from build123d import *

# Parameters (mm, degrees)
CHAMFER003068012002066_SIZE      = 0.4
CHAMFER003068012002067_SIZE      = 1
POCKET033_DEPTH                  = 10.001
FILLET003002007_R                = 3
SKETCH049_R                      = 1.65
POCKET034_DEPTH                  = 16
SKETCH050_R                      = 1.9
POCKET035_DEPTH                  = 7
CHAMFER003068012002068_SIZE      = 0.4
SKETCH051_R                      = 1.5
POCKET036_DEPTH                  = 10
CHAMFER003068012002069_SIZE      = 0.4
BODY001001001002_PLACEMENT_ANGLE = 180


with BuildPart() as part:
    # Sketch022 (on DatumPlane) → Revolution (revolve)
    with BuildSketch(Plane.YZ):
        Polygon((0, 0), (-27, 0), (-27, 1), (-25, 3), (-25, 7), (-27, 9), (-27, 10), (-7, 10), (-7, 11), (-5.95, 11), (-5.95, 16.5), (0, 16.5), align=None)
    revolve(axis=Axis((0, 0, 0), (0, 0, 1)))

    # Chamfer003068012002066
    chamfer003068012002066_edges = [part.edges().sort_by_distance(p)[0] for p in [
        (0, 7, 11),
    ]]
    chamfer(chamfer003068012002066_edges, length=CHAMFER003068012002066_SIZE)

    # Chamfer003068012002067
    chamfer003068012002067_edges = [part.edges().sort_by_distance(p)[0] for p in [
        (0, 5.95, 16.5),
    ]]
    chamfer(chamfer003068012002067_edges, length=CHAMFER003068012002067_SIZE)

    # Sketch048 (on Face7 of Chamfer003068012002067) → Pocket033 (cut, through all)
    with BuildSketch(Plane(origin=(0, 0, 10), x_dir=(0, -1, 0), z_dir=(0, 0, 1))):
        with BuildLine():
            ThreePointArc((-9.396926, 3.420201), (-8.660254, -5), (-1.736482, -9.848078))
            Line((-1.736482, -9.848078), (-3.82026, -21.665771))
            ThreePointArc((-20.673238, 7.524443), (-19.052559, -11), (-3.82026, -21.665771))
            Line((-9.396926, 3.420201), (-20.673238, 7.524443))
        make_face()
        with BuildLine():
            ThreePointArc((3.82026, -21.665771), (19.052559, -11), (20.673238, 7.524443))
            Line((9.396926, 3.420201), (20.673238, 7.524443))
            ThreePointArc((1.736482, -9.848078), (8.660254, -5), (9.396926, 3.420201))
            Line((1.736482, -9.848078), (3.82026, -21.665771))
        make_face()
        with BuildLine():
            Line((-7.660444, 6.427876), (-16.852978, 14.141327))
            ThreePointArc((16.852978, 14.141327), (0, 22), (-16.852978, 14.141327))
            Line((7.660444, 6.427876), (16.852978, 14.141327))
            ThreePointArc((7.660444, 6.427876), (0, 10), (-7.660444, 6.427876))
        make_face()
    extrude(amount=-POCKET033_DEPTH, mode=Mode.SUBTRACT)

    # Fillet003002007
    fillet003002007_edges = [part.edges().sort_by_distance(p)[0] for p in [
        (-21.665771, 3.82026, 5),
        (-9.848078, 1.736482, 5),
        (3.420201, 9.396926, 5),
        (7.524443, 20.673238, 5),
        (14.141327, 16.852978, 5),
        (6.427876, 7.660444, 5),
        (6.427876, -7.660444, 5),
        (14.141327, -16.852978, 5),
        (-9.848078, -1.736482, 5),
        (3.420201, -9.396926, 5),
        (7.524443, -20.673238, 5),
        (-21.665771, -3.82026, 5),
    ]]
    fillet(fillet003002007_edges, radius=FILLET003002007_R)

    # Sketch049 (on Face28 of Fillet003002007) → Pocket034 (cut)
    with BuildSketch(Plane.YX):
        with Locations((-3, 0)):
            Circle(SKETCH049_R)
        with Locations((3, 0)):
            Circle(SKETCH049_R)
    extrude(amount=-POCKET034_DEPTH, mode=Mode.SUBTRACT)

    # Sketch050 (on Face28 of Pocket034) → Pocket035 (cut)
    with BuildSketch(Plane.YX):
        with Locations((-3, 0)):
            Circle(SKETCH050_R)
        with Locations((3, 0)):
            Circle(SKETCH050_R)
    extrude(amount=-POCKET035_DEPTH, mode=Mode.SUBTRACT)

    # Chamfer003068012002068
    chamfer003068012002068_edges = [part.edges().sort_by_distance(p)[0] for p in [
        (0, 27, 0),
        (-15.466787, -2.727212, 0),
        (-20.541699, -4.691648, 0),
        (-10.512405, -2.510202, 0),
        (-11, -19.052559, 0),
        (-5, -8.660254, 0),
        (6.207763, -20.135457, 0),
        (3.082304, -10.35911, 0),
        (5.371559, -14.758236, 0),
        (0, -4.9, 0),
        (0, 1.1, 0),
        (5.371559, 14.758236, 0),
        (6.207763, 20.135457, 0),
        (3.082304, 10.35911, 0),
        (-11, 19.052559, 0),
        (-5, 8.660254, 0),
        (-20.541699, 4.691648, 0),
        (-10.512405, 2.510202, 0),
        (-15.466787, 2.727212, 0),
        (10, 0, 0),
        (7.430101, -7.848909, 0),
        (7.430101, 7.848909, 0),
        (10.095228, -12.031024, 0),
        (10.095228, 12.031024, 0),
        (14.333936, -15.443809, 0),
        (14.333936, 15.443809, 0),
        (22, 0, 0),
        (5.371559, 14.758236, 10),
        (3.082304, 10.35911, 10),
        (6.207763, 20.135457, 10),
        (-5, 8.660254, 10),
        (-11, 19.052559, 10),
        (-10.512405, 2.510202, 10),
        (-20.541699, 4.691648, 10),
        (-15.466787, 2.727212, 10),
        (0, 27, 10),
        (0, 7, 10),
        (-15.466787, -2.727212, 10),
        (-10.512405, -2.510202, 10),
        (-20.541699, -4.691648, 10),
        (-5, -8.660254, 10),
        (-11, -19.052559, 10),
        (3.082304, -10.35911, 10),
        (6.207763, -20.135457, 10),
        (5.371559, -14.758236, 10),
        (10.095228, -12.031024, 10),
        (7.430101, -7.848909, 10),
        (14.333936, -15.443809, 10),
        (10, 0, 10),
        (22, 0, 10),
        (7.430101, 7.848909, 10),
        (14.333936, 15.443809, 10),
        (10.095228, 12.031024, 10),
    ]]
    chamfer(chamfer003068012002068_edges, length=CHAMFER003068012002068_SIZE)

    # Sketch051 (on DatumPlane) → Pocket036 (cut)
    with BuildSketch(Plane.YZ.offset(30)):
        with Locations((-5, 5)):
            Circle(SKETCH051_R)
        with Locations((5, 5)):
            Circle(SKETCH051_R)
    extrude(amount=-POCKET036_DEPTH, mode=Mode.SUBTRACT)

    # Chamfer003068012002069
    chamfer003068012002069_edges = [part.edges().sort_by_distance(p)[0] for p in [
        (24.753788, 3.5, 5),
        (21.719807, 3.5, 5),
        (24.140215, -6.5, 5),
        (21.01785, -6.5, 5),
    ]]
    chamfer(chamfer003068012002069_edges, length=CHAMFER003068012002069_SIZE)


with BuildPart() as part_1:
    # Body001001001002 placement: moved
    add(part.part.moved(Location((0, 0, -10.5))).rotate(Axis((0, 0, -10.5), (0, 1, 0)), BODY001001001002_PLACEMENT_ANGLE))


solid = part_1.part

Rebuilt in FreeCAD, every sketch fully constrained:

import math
import FreeCAD as App
import Part
import Sketcher
from FreeCAD import Vector
Q = App.Units.Quantity


def edges_at(feature, points):
    """Names of the edges that pass closest to the given points."""
    edges = feature.Shape.Edges
    near = lambda p: min(range(len(edges)), key=lambda i: edges[i].distToShape(Part.Vertex(*p))[0])
    return sorted({f"Edge{near(p) + 1}" for p in points})


def add_polygon(sketch, points):
    """Adds a closed chain of lines whose ends are joined by coincident constraints."""
    first, n = sketch.GeometryCount, len(points)
    for a, b in zip(points, points[1:] + points[:1]):
        sketch.addGeometry(Part.LineSegment(App.Vector(*a, 0), App.Vector(*b, 0)), False)
    for i in range(n):
        sketch.addConstraint(Sketcher.Constraint("Coincident", first + i, 2, first + (i + 1) % n, 1))

doc = App.newDocument("Part")
body = doc.addObject("PartDesign::Body", "Body")

sketch1 = body.newObject("Sketcher::SketchObject", "Sketch")
sketch1.AttachmentSupport = (doc.getObject("YZ_Plane"), [""])
sketch1.MapMode = "FlatFace"
add_polygon(sketch1, [(-27, 0), (0, 0), (0, 16.5), (-5.95, 16.5), (-5.95, 11), (-7, 11), (-7, 10), (-27, 10), (-27, 9), (-25, 7), (-25, 3), (-27, 1)])
sketch1.addConstraint([
    Sketcher.Constraint("Horizontal", 0),
    Sketcher.Constraint("Vertical", 1),
    Sketcher.Constraint("Horizontal", 2),
    Sketcher.Constraint("Vertical", 3),
    Sketcher.Constraint("Horizontal", 4),
    Sketcher.Constraint("Vertical", 5),
    Sketcher.Constraint("Horizontal", 6),
    Sketcher.Constraint("Vertical", 7),
    Sketcher.Constraint("Vertical", 9),
    Sketcher.Constraint("Vertical", 11),
    Sketcher.Constraint("Coincident", 0, 2, -1, 1),
    Sketcher.Constraint("Perpendicular", 8, 10),
    Sketcher.Constraint("Vertical", 7, 2, 10, 2),
    Sketcher.Constraint("Equal", 5, 7),
    Sketcher.Constraint("Equal", 7, 11),
    Sketcher.Constraint("Equal", 8, 10),
    Sketcher.Constraint("DistanceX", 0, 1, 0, 2, 27.0),
    Sketcher.Constraint("DistanceX", 6, 2, 6, 1, 20.0),
    Sketcher.Constraint("DistanceY", 5, 2, 5, 1, 1.0),
    Sketcher.Constraint("DistanceY", 9, 2, 9, 1, 4.0),
    Sketcher.Constraint("DistanceY", 1, 1, 1, 2, 16.5),
    Sketcher.Constraint("DistanceY", 3, 2, 3, 1, 5.5),
    Sketcher.Constraint("DistanceX", 2, 2, 2, 1, 5.95),
])
revolution = body.newObject("PartDesign::Revolution", "Revolution")
revolution.Profile = sketch1
revolution.ReferenceAxis = (sketch1, ["V_Axis"])
revolution.Angle = 360
doc.recompute()

chamfer = body.newObject("PartDesign::Chamfer", "Chamfer")
chamfer.Base = (revolution, edges_at(revolution, [(0, 7, 11)]))
chamfer.Size = 0.4
doc.recompute()

chamfer2 = body.newObject("PartDesign::Chamfer", "Chamfer001")
chamfer2.Base = (chamfer, edges_at(chamfer, [(0, 5.95, 16.5)]))
chamfer2.Size = 1

sketch2 = body.newObject("Sketcher::SketchObject", "Sketch001")
sketch2.AttachmentSupport = (doc.getObject("XY_Plane"), [""])
sketch2.MapMode = "FlatFace"
sketch2.AttachmentOffset = App.Placement(Vector(0, 0, 10), App.Rotation())
sketch2.addGeometry([
    Part.ArcOfCircle(Part.Circle(Vector(0, -0.000001, 0), Vector(0, 0, 1), 10), math.radians(70.000001), math.radians(169.999996)),
    Part.LineSegment(Vector(3.420201, 9.396926, 0), Vector(7.524443, 20.673238, 0)),
    Part.ArcOfCircle(Part.Circle(Vector(0, -0.000001, 0), Vector(0, 0, 1), 22.000001), math.radians(70.000002), math.radians(169.999998)),
    Part.LineSegment(Vector(-21.665771, 3.82026, 0), Vector(-9.848078, 1.736482, 0)),
    Part.ArcOfCircle(Part.Circle(Vector(0, 0.000001, 0), Vector(0, 0, 1), 22.000001), math.radians(-169.999998), math.radians(-70.000002)),
    Part.LineSegment(Vector(7.524443, -20.673238, 0), Vector(3.420201, -9.396926, 0)),
    Part.ArcOfCircle(Part.Circle(Vector(0, 0.000001, 0), Vector(0, 0, 1), 10), math.radians(-169.999996), math.radians(-70.000001)),
    Part.LineSegment(Vector(-9.848078, -1.736482, 0), Vector(-21.665771, -3.82026, 0)),
    Part.LineSegment(Vector(14.141327, 16.852978, 0), Vector(6.427876, 7.660444, 0)),
    Part.ArcOfCircle(Part.Circle(Vector(0.000001, 0, 0), Vector(0, 0, 1), 9.999999), math.radians(-50.000004), math.radians(50.000004)),
    Part.LineSegment(Vector(6.427876, -7.660444, 0), Vector(14.141327, -16.852978, 0)),
    Part.ArcOfCircle(Part.Circle(Vector(0, 0, 0), Vector(0, 0, 1), 22), math.radians(-50.000002), math.radians(50.000002)),
], False)
sketch2.addConstraint([
    Sketcher.Constraint("Coincident", 0, 1, 1, 1),
    Sketcher.Constraint("Coincident", 1, 2, 2, 1),
    Sketcher.Constraint("Coincident", 2, 2, 3, 1),
    Sketcher.Constraint("Coincident", 3, 2, 0, 2),
    Sketcher.Constraint("Coincident", 4, 2, 5, 1),
    Sketcher.Constraint("Coincident", 5, 2, 6, 2),
    Sketcher.Constraint("Coincident", 6, 1, 7, 1),
    Sketcher.Constraint("Coincident", 7, 2, 4, 1),
    Sketcher.Constraint("Coincident", 8, 2, 9, 2),
    Sketcher.Constraint("Coincident", 9, 1, 10, 1),
    Sketcher.Constraint("Coincident", 10, 2, 11, 1),
    Sketcher.Constraint("Coincident", 11, 2, 8, 1),
    Sketcher.Constraint("Coincident", 0, 3, -1, 1),
    Sketcher.Constraint("Coincident", 2, 3, -1, 1),
    Sketcher.Constraint("Coincident", 4, 3, -1, 1),
    Sketcher.Constraint("Coincident", 6, 3, -1, 1),
    Sketcher.Constraint("Coincident", 9, 3, -1, 1),
    Sketcher.Constraint("Coincident", 11, 3, -1, 1),
    Sketcher.Constraint("Equal", 2, 4),
    Sketcher.Constraint("Equal", 0, 6),
    Sketcher.Constraint("Equal", 6, 9),
    Sketcher.Constraint("Equal", 4, 11),
    Sketcher.Constraint("Vertical", 1, 2, 4, 2),
    Sketcher.Constraint("Vertical", 0, 1, 5, 2),
    Sketcher.Constraint("Vertical", 3, 2, 6, 1),
    Sketcher.Constraint("Vertical", 2, 2, 7, 2),
    Sketcher.Constraint("Vertical", 8, 2, 9, 1),
    Sketcher.Constraint("Vertical", 10, 2, 11, 2),
    Sketcher.Constraint("Radius", 0, 10.0),
    Sketcher.Constraint("Radius", 2, 22.000001),
    Sketcher.Constraint("Angle", 1, Q("70 deg")),
    Sketcher.Constraint("Angle", 3, Q("-9.999999 deg")),
    Sketcher.Constraint("Angle", 8, Q("-129.999997 deg")),
    Sketcher.Constraint("DistanceX", -1, 1, 0, 1, 3.420201),
    Sketcher.Constraint("DistanceX", 2, 2, -1, 1, 21.665771),
    Sketcher.Constraint("DistanceY", 10, 2, -1, 1, 16.852978),
])
pocket1 = body.newObject("PartDesign::Pocket", "Pocket")
pocket1.Profile = sketch2
pocket1.Type = "ThroughAll"
doc.recompute()

fillet = body.newObject("PartDesign::Fillet", "Fillet")
fillet.Base = (pocket1, edges_at(pocket1, [
    (-21.666, 3.82, 5),
    (-9.848, 1.736, 5),
    (3.42, 9.397, 5),
    (7.524, 20.673, 5),
    (14.141, 16.853, 5),
    (6.428, 7.66, 5),
    (6.428, -7.66, 5),
    (14.141, -16.853, 5),
    (-9.848, -1.736, 5),
    (3.42, -9.397, 5),
    (7.524, -20.673, 5),
    (-21.666, -3.82, 5),
]))
fillet.Radius = 3

sketch3 = body.newObject("Sketcher::SketchObject", "Sketch002")
sketch3.AttachmentSupport = (doc.getObject("XY_Plane"), [""])
sketch3.MapMode = "FlatFace"
sketch3.addGeometry([
    Part.Circle(Vector(0, -3, 0), Vector(0, 0, 1), 1.65),
    Part.Circle(Vector(0, 3, 0), Vector(0, 0, 1), 1.65),
], False)
sketch3.addConstraint([
    Sketcher.Constraint("Equal", 0, 1),
    Sketcher.Constraint("Symmetric", 0, 3, 1, 3, -1, 1),
    Sketcher.Constraint("PointOnObject", 0, 3, -2),
    Sketcher.Constraint("Diameter", 0, 3.3),
    Sketcher.Constraint("DistanceY", 0, 3, -1, 1, 3.0),
])
pocket2 = body.newObject("PartDesign::Pocket", "Pocket001")
pocket2.Profile = sketch3
pocket2.Length = 16
pocket2.Reversed = True

sketch4 = body.newObject("Sketcher::SketchObject", "Sketch003")
sketch4.AttachmentSupport = (doc.getObject("XY_Plane"), [""])
sketch4.MapMode = "FlatFace"
sketch4.addGeometry([
    Part.Circle(Vector(0, -3, 0), Vector(0, 0, 1), 1.9),
    Part.Circle(Vector(0, 3, 0), Vector(0, 0, 1), 1.9),
], False)
sketch4.addConstraint([
    Sketcher.Constraint("Equal", 0, 1),
    Sketcher.Constraint("Symmetric", 0, 3, 1, 3, -1, 1),
    Sketcher.Constraint("PointOnObject", 0, 3, -2),
    Sketcher.Constraint("Diameter", 0, 3.8),
    Sketcher.Constraint("DistanceY", 0, 3, -1, 1, 3.0),
])
pocket3 = body.newObject("PartDesign::Pocket", "Pocket002")
pocket3.Profile = sketch4
pocket3.Length = 7
pocket3.Reversed = True
doc.recompute()

chamfer3 = body.newObject("PartDesign::Chamfer", "Chamfer002")
chamfer3.Base = (pocket3, edges_at(pocket3, [
    (0, 27, 0),
    (-15.467, -2.727, 0),
    (-20.542, -4.692, 0),
    (-10.512, -2.51, 0),
    (-11, -19.053, 0),
    (-5, -8.66, 0),
    (6.208, -20.135, 0),
    (3.082, -10.359, 0),
    (5.372, -14.758, 0),
    (0, -4.9, 0),
    (0, 1.1, 0),
    (5.372, 14.758, 0),
    (6.208, 20.135, 0),
    (3.082, 10.359, 0),
    (-11, 19.053, 0),
    (-5, 8.66, 0),
    (-20.542, 4.692, 0),
    (-10.512, 2.51, 0),
    (-15.467, 2.727, 0),
    (10, 0, 0),
    (7.43, -7.849, 0),
    (7.43, 7.849, 0),
    (10.095, -12.031, 0),
    (10.095, 12.031, 0),
    (14.334, -15.444, 0),
    (14.334, 15.444, 0),
    (22, 0, 0),
    (5.372, 14.758, 10),
    (3.082, 10.359, 10),
    (6.208, 20.135, 10),
    (-5, 8.66, 10),
    (-11, 19.053, 10),
    (-10.512, 2.51, 10),
    (-20.542, 4.692, 10),
    (-15.467, 2.727, 10),
    (0, 27, 10),
    (0, 7, 10),
    (-15.467, -2.727, 10),
    (-10.512, -2.51, 10),
    (-20.542, -4.692, 10),
    (-5, -8.66, 10),
    (-11, -19.053, 10),
    (3.082, -10.359, 10),
    (6.208, -20.135, 10),
    (5.372, -14.758, 10),
    (10.095, -12.031, 10),
    (7.43, -7.849, 10),
    (14.334, -15.444, 10),
    (10, 0, 10),
    (22, 0, 10),
    (7.43, 7.849, 10),
    (14.334, 15.444, 10),
    (10.095, 12.031, 10),
]))
chamfer3.Size = 0.4

sketch5 = body.newObject("Sketcher::SketchObject", "Sketch004")
sketch5.AttachmentSupport = (doc.getObject("YZ_Plane"), [""])
sketch5.MapMode = "FlatFace"
sketch5.AttachmentOffset = App.Placement(Vector(0, 0, 30), App.Rotation())
sketch5.addGeometry([
    Part.Circle(Vector(-5, 5, 0), Vector(0, 0, 1), 1.5),
    Part.Circle(Vector(5, 5, 0), Vector(0, 0, 1), 1.5),
], False)
sketch5.addConstraint([
    Sketcher.Constraint("Equal", 0, 1),
    Sketcher.Constraint("Symmetric", 0, 3, 1, 3, -2),
    Sketcher.Constraint("Diameter", 0, 3.0),
    Sketcher.Constraint("DistanceX", 0, 3, -1, 1, 5.0),
    Sketcher.Constraint("DistanceY", -1, 1, 0, 3, 5.0),
])
pocket4 = body.newObject("PartDesign::Pocket", "Pocket003")
pocket4.Profile = sketch5
pocket4.Length = 10
doc.recompute()

chamfer4 = body.newObject("PartDesign::Chamfer", "Chamfer003")
chamfer4.Base = (pocket4, edges_at(pocket4, [
    (24.754, 3.5, 5),
    (21.72, 3.5, 5),
    (24.14, -6.5, 5),
    (21.018, -6.5, 5),
]))
chamfer4.Size = 0.4
body2 = doc.addObject("PartDesign::Body", "Body001")
doc.recompute()

body.Placement = App.Placement(Vector(0, 0, -10.5), App.Rotation(Vector(0, 1, 0), 180))
boolean = body2.newObject("PartDesign::Boolean", "Boolean")
boolean.Type = "Fuse"
boolean.addObjects([body])

doc.recompute()
